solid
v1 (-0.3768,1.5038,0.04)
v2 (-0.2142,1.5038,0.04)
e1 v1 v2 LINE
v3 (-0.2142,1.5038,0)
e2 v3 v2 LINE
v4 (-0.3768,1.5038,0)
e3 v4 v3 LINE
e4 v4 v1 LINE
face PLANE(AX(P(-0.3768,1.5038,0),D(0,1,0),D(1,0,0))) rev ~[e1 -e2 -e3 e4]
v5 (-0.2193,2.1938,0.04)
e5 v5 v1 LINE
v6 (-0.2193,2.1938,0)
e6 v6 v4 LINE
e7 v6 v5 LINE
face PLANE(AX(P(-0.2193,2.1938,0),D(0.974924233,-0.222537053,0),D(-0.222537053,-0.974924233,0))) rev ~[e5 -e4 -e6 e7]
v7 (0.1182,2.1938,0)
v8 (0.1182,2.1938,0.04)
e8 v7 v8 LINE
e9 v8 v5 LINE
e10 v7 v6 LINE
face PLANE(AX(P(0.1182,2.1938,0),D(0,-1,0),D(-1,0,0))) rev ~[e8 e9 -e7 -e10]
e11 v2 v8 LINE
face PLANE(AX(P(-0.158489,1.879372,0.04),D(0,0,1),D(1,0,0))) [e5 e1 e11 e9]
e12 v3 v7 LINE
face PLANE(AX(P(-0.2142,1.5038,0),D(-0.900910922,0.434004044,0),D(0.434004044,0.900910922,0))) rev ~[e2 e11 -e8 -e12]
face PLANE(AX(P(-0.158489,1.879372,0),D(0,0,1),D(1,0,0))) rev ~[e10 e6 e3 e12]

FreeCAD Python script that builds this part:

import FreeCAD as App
import Part
import Sketcher

V = App.Vector


def add_polygon(sketch, points):
    """Adds a closed chain of lines whose ends are joined by coincident constraints."""
    first, n = sketch.GeometryCount, len(points)
    for a, b in zip(points, points[1:] + points[:1]):
        sketch.addGeometry(Part.LineSegment(App.Vector(*a, 0), App.Vector(*b, 0)), False)
    for i in range(n):
        sketch.addConstraint(Sketcher.Constraint("Coincident", first + i, 2, first + (i + 1) % n, 1))

doc = App.newDocument("Part")
params = doc.addObject("Spreadsheet::Sheet", "Params")
for row, (alias, value) in enumerate([
    ("pad1_length", "0.04 mm"),
], start=1):
    params.set(f"A{row}", alias)
    params.set(f"B{row}", "=" + value)
    params.setAlias(f"B{row}", alias)

body = doc.addObject("PartDesign::Body", "Body")

# Sketch on XY plane
sketch1 = body.newObject("Sketcher::SketchObject", "Sketch")
sketch1.AttachmentSupport = (doc.getObject("XY_Plane"), [""])
sketch1.MapMode = "FlatFace"
add_polygon(sketch1, [(-0.2142, 1.5038), (0.1182, 2.1938), (-0.2193, 2.1938), (-0.3768, 1.5038)])  # lines 0-3
sketch1.addConstraint([
    Sketcher.Constraint("Horizontal", 1),
    Sketcher.Constraint("Horizontal", 3),
    Sketcher.Constraint("DistanceY", 2, 2, 1, 2, 0.69),
    Sketcher.Constraint("Distance", 0, 0.766),
    Sketcher.Constraint("DistanceX", 1, 2, 1, 1, 0.3375),
    Sketcher.Constraint("DistanceX", 3, 1, 3, 2, 0.1626),
    Sketcher.Constraint("DistanceX", -1, 1, 0, 2, 0.1182),
    Sketcher.Constraint("DistanceY", -1, 1, 0, 2, 2.1938),
])
pad1 = body.newObject("PartDesign::Pad", "Pad")
pad1.Profile = sketch1
pad1.setExpression("Length", "Params.pad1_length")

doc.recompute()
